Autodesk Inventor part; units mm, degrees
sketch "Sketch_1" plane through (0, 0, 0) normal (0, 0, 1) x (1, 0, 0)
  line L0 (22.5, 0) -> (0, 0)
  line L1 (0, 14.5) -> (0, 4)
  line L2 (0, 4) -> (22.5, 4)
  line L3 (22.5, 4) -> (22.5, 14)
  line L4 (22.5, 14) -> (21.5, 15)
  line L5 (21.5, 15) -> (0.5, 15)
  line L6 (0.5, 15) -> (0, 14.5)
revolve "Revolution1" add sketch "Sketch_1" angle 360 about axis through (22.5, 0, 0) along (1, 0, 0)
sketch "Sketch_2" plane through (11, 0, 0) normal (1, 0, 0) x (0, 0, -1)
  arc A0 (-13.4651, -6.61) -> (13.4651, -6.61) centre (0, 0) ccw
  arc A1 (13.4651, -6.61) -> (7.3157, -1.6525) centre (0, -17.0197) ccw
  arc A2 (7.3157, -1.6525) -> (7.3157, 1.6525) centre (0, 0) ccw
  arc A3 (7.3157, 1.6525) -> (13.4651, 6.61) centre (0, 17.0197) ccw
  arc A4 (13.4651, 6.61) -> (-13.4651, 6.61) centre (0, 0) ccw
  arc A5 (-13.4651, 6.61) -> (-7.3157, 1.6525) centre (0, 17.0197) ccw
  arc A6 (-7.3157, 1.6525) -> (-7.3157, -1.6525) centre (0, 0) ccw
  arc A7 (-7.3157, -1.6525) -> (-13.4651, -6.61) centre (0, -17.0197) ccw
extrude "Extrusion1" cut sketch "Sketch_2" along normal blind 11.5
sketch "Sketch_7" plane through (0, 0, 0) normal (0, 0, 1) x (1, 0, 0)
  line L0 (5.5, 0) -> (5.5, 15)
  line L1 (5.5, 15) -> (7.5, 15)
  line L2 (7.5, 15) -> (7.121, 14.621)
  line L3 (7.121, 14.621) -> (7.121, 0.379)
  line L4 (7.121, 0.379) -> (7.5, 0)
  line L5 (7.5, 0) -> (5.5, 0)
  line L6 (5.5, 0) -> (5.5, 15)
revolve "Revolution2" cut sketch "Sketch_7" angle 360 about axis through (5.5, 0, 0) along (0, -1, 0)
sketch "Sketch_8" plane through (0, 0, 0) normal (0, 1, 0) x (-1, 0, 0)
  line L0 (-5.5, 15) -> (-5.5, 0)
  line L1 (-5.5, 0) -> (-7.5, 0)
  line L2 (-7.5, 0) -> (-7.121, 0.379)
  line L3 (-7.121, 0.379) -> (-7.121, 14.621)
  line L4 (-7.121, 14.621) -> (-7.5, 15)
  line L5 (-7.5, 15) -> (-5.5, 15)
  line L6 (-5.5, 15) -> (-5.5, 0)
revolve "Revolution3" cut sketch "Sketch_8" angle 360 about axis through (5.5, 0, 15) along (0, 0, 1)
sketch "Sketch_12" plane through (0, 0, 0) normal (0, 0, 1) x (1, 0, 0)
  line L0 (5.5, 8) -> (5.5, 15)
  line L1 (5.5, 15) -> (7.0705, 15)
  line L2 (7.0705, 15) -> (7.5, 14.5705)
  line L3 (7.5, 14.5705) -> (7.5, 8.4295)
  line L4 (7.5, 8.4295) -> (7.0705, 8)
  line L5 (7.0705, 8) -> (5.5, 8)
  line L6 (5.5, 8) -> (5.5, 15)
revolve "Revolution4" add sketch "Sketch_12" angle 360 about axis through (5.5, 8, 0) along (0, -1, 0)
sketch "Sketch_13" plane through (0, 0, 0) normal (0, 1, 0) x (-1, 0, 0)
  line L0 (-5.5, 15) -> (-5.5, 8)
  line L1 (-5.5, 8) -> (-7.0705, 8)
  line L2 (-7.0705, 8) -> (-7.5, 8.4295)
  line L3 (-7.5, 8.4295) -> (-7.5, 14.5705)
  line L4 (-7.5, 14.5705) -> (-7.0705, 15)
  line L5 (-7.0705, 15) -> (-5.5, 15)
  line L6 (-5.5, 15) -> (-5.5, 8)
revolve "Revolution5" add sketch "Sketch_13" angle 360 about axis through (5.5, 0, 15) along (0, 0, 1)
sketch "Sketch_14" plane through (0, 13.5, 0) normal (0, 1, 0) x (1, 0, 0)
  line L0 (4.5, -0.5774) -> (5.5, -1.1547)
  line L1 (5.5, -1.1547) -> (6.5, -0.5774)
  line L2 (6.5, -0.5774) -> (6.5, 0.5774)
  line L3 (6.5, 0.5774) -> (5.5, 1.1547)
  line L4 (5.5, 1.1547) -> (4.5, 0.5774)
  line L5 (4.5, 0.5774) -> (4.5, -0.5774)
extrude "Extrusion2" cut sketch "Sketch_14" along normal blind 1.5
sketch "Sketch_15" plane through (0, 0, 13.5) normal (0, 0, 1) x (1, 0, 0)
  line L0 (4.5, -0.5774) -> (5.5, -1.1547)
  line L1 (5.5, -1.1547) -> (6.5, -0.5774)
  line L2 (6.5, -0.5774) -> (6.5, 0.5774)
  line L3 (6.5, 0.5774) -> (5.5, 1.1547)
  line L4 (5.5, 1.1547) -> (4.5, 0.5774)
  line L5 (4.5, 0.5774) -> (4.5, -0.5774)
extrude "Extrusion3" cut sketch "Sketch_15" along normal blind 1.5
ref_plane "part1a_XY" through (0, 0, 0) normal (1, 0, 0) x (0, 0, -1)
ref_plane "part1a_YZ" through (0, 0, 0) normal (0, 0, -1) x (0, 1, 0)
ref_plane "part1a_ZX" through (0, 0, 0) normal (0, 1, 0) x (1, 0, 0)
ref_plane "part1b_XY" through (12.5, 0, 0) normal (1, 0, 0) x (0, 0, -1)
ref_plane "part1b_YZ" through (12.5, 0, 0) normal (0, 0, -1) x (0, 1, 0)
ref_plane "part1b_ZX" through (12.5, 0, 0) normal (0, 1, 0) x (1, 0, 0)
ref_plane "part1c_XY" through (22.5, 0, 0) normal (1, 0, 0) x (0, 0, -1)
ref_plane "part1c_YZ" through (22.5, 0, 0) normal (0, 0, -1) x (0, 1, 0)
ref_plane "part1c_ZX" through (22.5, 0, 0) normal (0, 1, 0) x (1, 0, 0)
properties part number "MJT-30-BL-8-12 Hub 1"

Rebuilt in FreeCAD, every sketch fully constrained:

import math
import FreeCAD as App
import Part
import Sketcher
from FreeCAD import Vector
Q = App.Units.Quantity


def add_polygon(sketch, points):
    """Adds a closed chain of lines whose ends are joined by coincident constraints."""
    first, n = sketch.GeometryCount, len(points)
    for a, b in zip(points, points[1:] + points[:1]):
        sketch.addGeometry(Part.LineSegment(App.Vector(*a, 0), App.Vector(*b, 0)), False)
    for i in range(n):
        sketch.addConstraint(Sketcher.Constraint("Coincident", first + i, 2, first + (i + 1) % n, 1))

doc = App.newDocument("Part")
params = doc.addObject("Spreadsheet::Sheet", "Params")
for row, (alias, value) in enumerate([
    ("sketch1_width", "21 mm"),
    ("sketch1_height", "10 mm"),
    ("sketch1_width2", "22.5 mm"),
    ("sketch1_height2", "10.5 mm"),
    ("revolution_angle", "360 deg"),
    ("sketch2_radius", "15 mm"),
    ("sketch2_radius2", "7.5 mm"),
    ("pocket1_length", "11.5 mm"),
    ("sketch3_width", "2 mm"),
    ("sketch3_height", "15 mm"),
    ("groove_angle", "360 deg"),
    ("sketch4_width", "2 mm"),
    ("sketch4_height", "15 mm"),
    ("groove2_angle", "360 deg"),
    ("sketch5_height", "7 mm"),
    ("revolution2_angle", "360 deg"),
    ("sketch6_height", "7 mm"),
    ("revolution3_angle", "360 deg"),
    ("pocket2_length", "1.5 mm"),
    ("pocket3_length", "1.5 mm"),
], start=1):
    params.set(f"A{row}", alias)
    params.set(f"B{row}", "=" + value)
    params.setAlias(f"B{row}", alias)

body = doc.addObject("PartDesign::Body", "Body")

sketch1 = body.newObject("Sketcher::SketchObject", "Sketch")
sketch1.AttachmentSupport = (doc.getObject("XY_Plane"), [""])
sketch1.MapMode = "FlatFace"
add_polygon(sketch1, [(0.5, 15), (0, 14.5), (0, 4), (22.5, 4), (22.5, 14), (21.5, 15)])
sketch1.addConstraint([
    Sketcher.Constraint("Vertical", 1),
    Sketcher.Constraint("Horizontal", 2),
    Sketcher.Constraint("Vertical", 3),
    Sketcher.Constraint("Horizontal", 5),
    Sketcher.Constraint("PointOnObject", 0, 2, -2),
    Sketcher.Constraint("Perpendicular", 0, 4),
    Sketcher.Constraint("DistanceX", 5, 2, 5, 1, Q("21 mm")),
    Sketcher.Constraint("DistanceY", 3, 1, 3, 2, Q("10 mm")),
    Sketcher.Constraint("Angle", 0, Q("-135 deg")),
    Sketcher.Constraint("DistanceX", 2, 1, 2, 2, Q("22.5 mm")),
    Sketcher.Constraint("DistanceY", 1, 2, 1, 1, Q("10.5 mm")),
    Sketcher.Constraint("DistanceY", -1, 1, 1, 2, Q("4 mm")),
])
sketch1.setExpression("Constraints[12]", "Params.sketch1_width")
sketch1.setExpression("Constraints[13]", "Params.sketch1_height")
sketch1.setExpression("Constraints[15]", "Params.sketch1_width2")
sketch1.setExpression("Constraints[16]", "Params.sketch1_height2")
revolution = body.newObject("PartDesign::Revolution", "Revolution")
revolution.Profile = sketch1
revolution.ReferenceAxis = (sketch1, ["H_Axis"])
revolution.setExpression("Angle", "Params.revolution_angle")

sketch2 = body.newObject("Sketcher::SketchObject", "Sketch001")
sketch2.AttachmentSupport = (doc.getObject("YZ_Plane"), [""])
sketch2.MapMode = "FlatFace"
sketch2.AttachmentOffset = App.Placement(Vector(0, 0, 11), App.Rotation())
sketch2.addGeometry([
    Part.ArcOfCircle(Part.Circle(Vector(-17.0197, 0, 0), Vector(0, 0, 1), 17.019717), math.radians(25.457223), math.radians(52.29284)),
    Part.ArcOfCircle(Part.Circle(Vector(0, 0, 0), Vector(0, 0, 1), 15.000034), math.radians(116.146361), math.radians(243.853639)),
    Part.ArcOfCircle(Part.Circle(Vector(-17.0197, 0, 0), Vector(0, 0, 1), 17.019703), math.radians(-52.29284), math.radians(-25.457223)),
    Part.ArcOfCircle(Part.Circle(Vector(0, 0, 0), Vector(0, 0, 1), 7.500015), math.radians(-102.728586), math.radians(-77.271414)),
    Part.ArcOfCircle(Part.Circle(Vector(17.0197, 0, 0), Vector(0, 0, 1), 17.019717), math.radians(-154.542777), math.radians(-127.70716)),
    Part.ArcOfCircle(Part.Circle(Vector(0, 0, 0), Vector(0, 0, 1), 15.000034), math.radians(-63.853639), math.radians(63.853639)),
    Part.ArcOfCircle(Part.Circle(Vector(17.0197, 0, 0), Vector(0, 0, 1), 17.019703), math.radians(127.70716), math.radians(154.542777)),
    Part.ArcOfCircle(Part.Circle(Vector(0, 0, 0), Vector(0, 0, 1), 7.500015), math.radians(77.271414), math.radians(102.728586)),
], False)
sketch2.addConstraint([
    Sketcher.Constraint("Coincident", 0, 2, 1, 1),
    Sketcher.Constraint("Coincident", 1, 2, 2, 1),
    Sketcher.Constraint("Coincident", 2, 2, 3, 1),
    Sketcher.Constraint("Coincident", 3, 2, 4, 1),
    Sketcher.Constraint("Coincident", 4, 2, 5, 1),
    Sketcher.Constraint("Coincident", 5, 2, 6, 1),
    Sketcher.Constraint("Coincident", 6, 2, 7, 1),
    Sketcher.Constraint("Coincident", 7, 2, 0, 1),
    Sketcher.Constraint("Coincident", 1, 3, -1, 1),
    Sketcher.Constraint("Coincident", 3, 3, -1, 1),
    Sketcher.Constraint("Coincident", 5, 3, -1, 1),
    Sketcher.Constraint("Coincident", 7, 3, -1, 1),
    Sketcher.Constraint("Coincident", 2, 3, 0, 3),
    Sketcher.Constraint("Coincident", 6, 3, 4, 3),
    Sketcher.Constraint("Equal", 0, 2),
    Sketcher.Constraint("Equal", 2, 4),
    Sketcher.Constraint("Equal", 1, 5),
    Sketcher.Constraint("Equal", 4, 6),
    Sketcher.Constraint("Equal", 3, 7),
    Sketcher.Constraint("Symmetric", 0, 3, 4, 3, -1, 1),
    Sketcher.Constraint("PointOnObject", 0, 3, -1),
    Sketcher.Constraint("Radius", 1, Q("15 mm")),
    Sketcher.Constraint("Radius", 3, Q("7.5 mm")),
    Sketcher.Constraint("Radius", 0, Q("17.0197 mm")),
    Sketcher.Constraint("DistanceX", 0, 2, -1, 1, Q("6.61 mm")),
])
sketch2.setExpression("Constraints[21]", "Params.sketch2_radius")
sketch2.setExpression("Constraints[22]", "Params.sketch2_radius2")
pocket1 = body.newObject("PartDesign::Pocket", "Pocket")
pocket1.Profile = sketch2
pocket1.setExpression("Length", "Params.pocket1_length")
pocket1.Reversed = True

sketch3 = body.newObject("Sketcher::SketchObject", "Sketch002")
sketch3.AttachmentSupport = (doc.getObject("XY_Plane"), [""])
sketch3.MapMode = "FlatFace"
add_polygon(sketch3, [(5.5, 15), (5.5, 0), (7.5, 0), (7.121, 0.379), (7.121, 14.621), (7.5, 15)])
sketch3.addGeometry(Part.LineSegment(Vector(5.5, 15, 0), Vector(5.5, 0, 0)), True)
sketch3.addConstraint([
    Sketcher.Constraint("Vertical", 0),
    Sketcher.Constraint("Horizontal", 1),
    Sketcher.Constraint("Vertical", 3),
    Sketcher.Constraint("Horizontal", 5),
    Sketcher.Constraint("Vertical", 6),
    Sketcher.Constraint("Coincident", 6, 1, 5, 2),
    Sketcher.Constraint("PointOnObject", 0, 2, -1),
    Sketcher.Constraint("PointOnObject", 6, 2, -1),
    Sketcher.Constraint("Perpendicular", 2, 4),
    Sketcher.Constraint("Vertical", 1, 2, 4, 2),
    Sketcher.Constraint("Equal", 2, 4),
    Sketcher.Constraint("DistanceX", 1, 1, 1, 2, Q("2 mm")),
    Sketcher.Constraint("DistanceY", 0, 2, 0, 1, Q("15 mm")),
    Sketcher.Constraint("DistanceX", -1, 1, 0, 2, Q("5.5 mm")),
    Sketcher.Constraint("DistanceY", 3, 1, 3, 2, Q("14.242 mm")),
])
sketch3.setExpression("Constraints[17]", "Params.sketch3_width")
sketch3.setExpression("Constraints[18]", "Params.sketch3_height")
groove = body.newObject("PartDesign::Groove", "Groove")
groove.Profile = sketch3
groove.ReferenceAxis = (sketch3, ["Axis0"])
groove.setExpression("Angle", "Params.groove_angle")

sketch4 = body.newObject("Sketcher::SketchObject", "Sketch003")
sketch4.AttachmentSupport = (doc.getObject("XZ_Plane"), [""])
sketch4.MapMode = "FlatFace"
add_polygon(sketch4, [(5.5, 0), (5.5, 15), (7.5, 15), (7.121, 14.621), (7.121, 0.379), (7.5, 0)])
sketch4.addGeometry(Part.LineSegment(Vector(5.5, 0, 0), Vector(5.5, 15, 0)), True)
sketch4.addConstraint([
    Sketcher.Constraint("Vertical", 0),
    Sketcher.Constraint("Horizontal", 1),
    Sketcher.Constraint("Vertical", 3),
    Sketcher.Constraint("Horizontal", 5),
    Sketcher.Constraint("Vertical", 6),
    Sketcher.Constraint("Coincident", 6, 1, 5, 2),
    Sketcher.Constraint("PointOnObject", 4, 2, -1),
    Sketcher.Constraint("Perpendicular", 2, 4),
    Sketcher.Constraint("Horizontal", 1, 2, 6, 2),
    Sketcher.Constraint("Vertical", 1, 2, 4, 2),
    Sketcher.Constraint("Equal", 2, 4),
    Sketcher.Constraint("DistanceX", 1, 1, 1, 2, Q("2 mm")),
    Sketcher.Constraint("DistanceY", 0, 1, 0, 2, Q("15 mm")),
    Sketcher.Constraint("DistanceX", -1, 1, 0, 2, Q("5.5 mm")),
    Sketcher.Constraint("DistanceY", 3, 2, 3, 1, Q("14.242 mm")),
])
sketch4.setExpression("Constraints[17]", "Params.sketch4_width")
sketch4.setExpression("Constraints[18]", "Params.sketch4_height")
groove2 = body.newObject("PartDesign::Groove", "Groove001")
groove2.Profile = sketch4
groove2.ReferenceAxis = (sketch4, ["Axis0"])
groove2.setExpression("Angle", "Params.groove2_angle")

sketch5 = body.newObject("Sketcher::SketchObject", "Sketch004")
sketch5.AttachmentSupport = (doc.getObject("XY_Plane"), [""])
sketch5.MapMode = "FlatFace"
add_polygon(sketch5, [(5.5, 15), (5.5, 8), (7.0705, 8), (7.5, 8.4295), (7.5, 14.5705), (7.0705, 15)])
sketch5.addGeometry(Part.LineSegment(Vector(5.5, 15, 0), Vector(5.5, 8, 0)), True)
sketch5.addConstraint([
    Sketcher.Constraint("Vertical", 0),
    Sketcher.Constraint("Horizontal", 1),
    Sketcher.Constraint("Vertical", 3),
    Sketcher.Constraint("Horizontal", 5),
    Sketcher.Constraint("Vertical", 6),
    Sketcher.Constraint("Coincident", 6, 1, 5, 2),
    Sketcher.Constraint("Perpendicular", 2, 4),
    Sketcher.Constraint("Horizontal", 1, 2, 6, 2),
    Sketcher.Constraint("Vertical", 1, 2, 4, 2),
    Sketcher.Constraint("Equal", 2, 4),
    Sketcher.Constraint("DistanceY", 0, 2, 0, 1, Q("7 mm")),
    Sketcher.Constraint("DistanceY", -1, 1, 0, 2, Q("8 mm")),
    Sketcher.Constraint("DistanceX", 0, 2, 2, 2, Q("2 mm")),
    Sketcher.Constraint("DistanceX", -1, 1, 0, 2, Q("5.5 mm")),
    Sketcher.Constraint("DistanceY", 3, 1, 3, 2, Q("6.141 mm")),
])
sketch5.setExpression("Constraints[16]", "Params.sketch5_height")
revolution2 = body.newObject("PartDesign::Revolution", "Revolution001")
revolution2.Profile = sketch5
revolution2.ReferenceAxis = (sketch5, ["Axis0"])
revolution2.setExpression("Angle", "Params.revolution2_angle")

sketch6 = body.newObject("Sketcher::SketchObject", "Sketch005")
sketch6.AttachmentSupport = (doc.getObject("XZ_Plane"), [""])
sketch6.MapMode = "FlatFace"
add_polygon(sketch6, [(5.5, 8), (5.5, 15), (7.0705, 15), (7.5, 14.5705), (7.5, 8.4295), (7.0705, 8)])
sketch6.addGeometry(Part.LineSegment(Vector(5.5, 8, 0), Vector(5.5, 15, 0)), True)
sketch6.addConstraint([
    Sketcher.Constraint("Vertical", 0),
    Sketcher.Constraint("Horizontal", 1),
    Sketcher.Constraint("Vertical", 3),
    Sketcher.Constraint("Horizontal", 5),
    Sketcher.Constraint("Vertical", 6),
    Sketcher.Constraint("Coincident", 6, 1, 5, 2),
    Sketcher.Constraint("Perpendicular", 2, 4),
    Sketcher.Constraint("Horizontal", 1, 2, 6, 2),
    Sketcher.Constraint("Vertical", 1, 2, 4, 2),
    Sketcher.Constraint("Equal", 2, 4),
    Sketcher.Constraint("DistanceY", 0, 1, 0, 2, Q("7 mm")),
    Sketcher.Constraint("DistanceY", -1, 1, 0, 2, Q("15 mm")),
    Sketcher.Constraint("DistanceX", 0, 2, 2, 2, Q("2 mm")),
    Sketcher.Constraint("DistanceX", -1, 1, 0, 2, Q("5.5 mm")),
    Sketcher.Constraint("DistanceY", 3, 2, 3, 1, Q("6.141 mm")),
])
sketch6.setExpression("Constraints[16]", "Params.sketch6_height")
revolution3 = body.newObject("PartDesign::Revolution", "Revolution002")
revolution3.Profile = sketch6
revolution3.ReferenceAxis = (sketch6, ["Axis0"])
revolution3.setExpression("Angle", "Params.revolution3_angle")

sketch7 = body.newObject("Sketcher::SketchObject", "Sketch006")
sketch7.AttachmentSupport = (doc.getObject("XZ_Plane"), [""])
sketch7.MapMode = "FlatFace"
sketch7.AttachmentOffset = App.Placement(Vector(0, 0, -13.5), App.Rotation())
add_polygon(sketch7, [(4.5, -0.5774), (4.5, 0.5774), (5.5, 1.1547), (6.5, 0.5774), (6.5, -0.5774), (5.5, -1.1547)])
sketch7.addConstraint([
    Sketcher.Constraint("Vertical", 0),
    Sketcher.Constraint("Vertical", 3),
    Sketcher.Constraint("Symmetric", 1, 2, 4, 2, -1),
    Sketcher.Constraint("Parallel", 1, 4),
    Sketcher.Constraint("Parallel", 2, 5),
    Sketcher.Constraint("Horizontal", 0, 2, 2, 2),
    Sketcher.Constraint("Horizontal", 3, 2, 5, 2),
    Sketcher.Constraint("DistanceX", 0, 2, 1, 2, Q("1 mm")),
    Sketcher.Constraint("DistanceX", -1, 1, 0, 2, Q("4.5 mm")),
    Sketcher.Constraint("DistanceY", 0, 1, 0, 2, Q("1.1548 mm")),
    Sketcher.Constraint("DistanceY", 3, 2, 1, 2, Q("1.732 mm")),
])
pocket2 = body.newObject("PartDesign::Pocket", "Pocket001")
pocket2.Profile = sketch7
pocket2.setExpression("Length", "Params.pocket2_length")

sketch8 = body.newObject("Sketcher::SketchObject", "Sketch007")
sketch8.AttachmentSupport = (doc.getObject("XY_Plane"), [""])
sketch8.MapMode = "FlatFace"
sketch8.AttachmentOffset = App.Placement(Vector(0, 0, 13.5), App.Rotation())
add_polygon(sketch8, [(4.5, 0.5774), (4.5, -0.5774), (5.5, -1.1547), (6.5, -0.5774), (6.5, 0.5774), (5.5, 1.1547)])
sketch8.addConstraint([
    Sketcher.Constraint("Vertical", 0),
    Sketcher.Constraint("Vertical", 3),
    Sketcher.Constraint("Symmetric", 1, 2, 4, 2, -1),
    Sketcher.Constraint("Parallel", 1, 4),
    Sketcher.Constraint("Parallel", 2, 5),
    Sketcher.Constraint("Horizontal", 0, 2, 2, 2),
    Sketcher.Constraint("Horizontal", 3, 2, 5, 2),
    Sketcher.Constraint("DistanceX", 0, 2, 1, 2, Q("1 mm")),
    Sketcher.Constraint("DistanceX", -1, 1, 0, 2, Q("4.5 mm")),
    Sketcher.Constraint("DistanceY", 0, 2, 0, 1, Q("1.1548 mm")),
    Sketcher.Constraint("DistanceY", 1, 2, 3, 2, Q("1.732 mm")),
])
pocket3 = body.newObject("PartDesign::Pocket", "Pocket002")
pocket3.Profile = sketch8
pocket3.setExpression("Length", "Params.pocket3_length")
pocket3.Reversed = True

doc.recompute()
